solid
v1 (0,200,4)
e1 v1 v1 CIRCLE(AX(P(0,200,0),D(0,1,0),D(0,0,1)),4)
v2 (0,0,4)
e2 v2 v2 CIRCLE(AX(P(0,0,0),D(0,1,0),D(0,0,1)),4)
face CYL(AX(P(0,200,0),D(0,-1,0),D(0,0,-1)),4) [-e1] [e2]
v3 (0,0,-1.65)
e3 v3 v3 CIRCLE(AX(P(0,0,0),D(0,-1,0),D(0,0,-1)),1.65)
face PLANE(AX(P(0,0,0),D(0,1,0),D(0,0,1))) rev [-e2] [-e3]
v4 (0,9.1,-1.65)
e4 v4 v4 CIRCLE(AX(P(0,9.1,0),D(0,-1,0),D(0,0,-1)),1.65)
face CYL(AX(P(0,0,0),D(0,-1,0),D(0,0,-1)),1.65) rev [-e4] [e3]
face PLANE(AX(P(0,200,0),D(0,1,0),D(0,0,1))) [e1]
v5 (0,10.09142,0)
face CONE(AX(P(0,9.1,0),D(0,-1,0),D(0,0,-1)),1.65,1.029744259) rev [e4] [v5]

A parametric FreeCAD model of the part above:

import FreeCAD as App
import Part
import Sketcher

V = App.Vector

doc = App.newDocument("Part")
body = doc.addObject("PartDesign::Body", "Body")

# Sketch on XZ plane
sketch1 = body.newObject("Sketcher::SketchObject", "Sketch")
sketch1.AttachmentSupport = (doc.getObject("XZ_Plane"), [""])
sketch1.MapMode = "FlatFace"
sketch1.addGeometry(Part.Circle(V(0, 0, 0), V(0, 0, 1), 4), False)
sketch1.addConstraint(Sketcher.Constraint("Coincident", 0, 3, -1, 1))
sketch1.addConstraint(Sketcher.Constraint("Diameter", 0, 8.0))
pad1 = body.newObject("PartDesign::Pad", "Pad")
pad1.Profile = sketch1
pad1.Length = 200
pad1.Reversed = True

# Sketch on XZ plane
sketch2 = body.newObject("Sketcher::SketchObject", "Sketch001")
sketch2.AttachmentSupport = (doc.getObject("XZ_Plane"), [""])
sketch2.MapMode = "FlatFace"
sketch2.addGeometry(Part.Circle(V(0, 0, 0), V(0, 0, 1), 1.6), False)
sketch2.addConstraint(Sketcher.Constraint("Coincident", 0, 3, -1, 1))
sketch2.addConstraint(Sketcher.Constraint("Diameter", 0, 3.3))
doc.recompute()
hole = body.newObject("PartDesign::Hole", "Hole")
hole.Profile = sketch2
hole.ThreadType = "None"
hole.Diameter = 3.3
hole.DepthType = "Dimension"
hole.Depth = 9.1
hole.DrillPoint = "Angled"
hole.DrillPointAngle = 118

doc.recompute()
